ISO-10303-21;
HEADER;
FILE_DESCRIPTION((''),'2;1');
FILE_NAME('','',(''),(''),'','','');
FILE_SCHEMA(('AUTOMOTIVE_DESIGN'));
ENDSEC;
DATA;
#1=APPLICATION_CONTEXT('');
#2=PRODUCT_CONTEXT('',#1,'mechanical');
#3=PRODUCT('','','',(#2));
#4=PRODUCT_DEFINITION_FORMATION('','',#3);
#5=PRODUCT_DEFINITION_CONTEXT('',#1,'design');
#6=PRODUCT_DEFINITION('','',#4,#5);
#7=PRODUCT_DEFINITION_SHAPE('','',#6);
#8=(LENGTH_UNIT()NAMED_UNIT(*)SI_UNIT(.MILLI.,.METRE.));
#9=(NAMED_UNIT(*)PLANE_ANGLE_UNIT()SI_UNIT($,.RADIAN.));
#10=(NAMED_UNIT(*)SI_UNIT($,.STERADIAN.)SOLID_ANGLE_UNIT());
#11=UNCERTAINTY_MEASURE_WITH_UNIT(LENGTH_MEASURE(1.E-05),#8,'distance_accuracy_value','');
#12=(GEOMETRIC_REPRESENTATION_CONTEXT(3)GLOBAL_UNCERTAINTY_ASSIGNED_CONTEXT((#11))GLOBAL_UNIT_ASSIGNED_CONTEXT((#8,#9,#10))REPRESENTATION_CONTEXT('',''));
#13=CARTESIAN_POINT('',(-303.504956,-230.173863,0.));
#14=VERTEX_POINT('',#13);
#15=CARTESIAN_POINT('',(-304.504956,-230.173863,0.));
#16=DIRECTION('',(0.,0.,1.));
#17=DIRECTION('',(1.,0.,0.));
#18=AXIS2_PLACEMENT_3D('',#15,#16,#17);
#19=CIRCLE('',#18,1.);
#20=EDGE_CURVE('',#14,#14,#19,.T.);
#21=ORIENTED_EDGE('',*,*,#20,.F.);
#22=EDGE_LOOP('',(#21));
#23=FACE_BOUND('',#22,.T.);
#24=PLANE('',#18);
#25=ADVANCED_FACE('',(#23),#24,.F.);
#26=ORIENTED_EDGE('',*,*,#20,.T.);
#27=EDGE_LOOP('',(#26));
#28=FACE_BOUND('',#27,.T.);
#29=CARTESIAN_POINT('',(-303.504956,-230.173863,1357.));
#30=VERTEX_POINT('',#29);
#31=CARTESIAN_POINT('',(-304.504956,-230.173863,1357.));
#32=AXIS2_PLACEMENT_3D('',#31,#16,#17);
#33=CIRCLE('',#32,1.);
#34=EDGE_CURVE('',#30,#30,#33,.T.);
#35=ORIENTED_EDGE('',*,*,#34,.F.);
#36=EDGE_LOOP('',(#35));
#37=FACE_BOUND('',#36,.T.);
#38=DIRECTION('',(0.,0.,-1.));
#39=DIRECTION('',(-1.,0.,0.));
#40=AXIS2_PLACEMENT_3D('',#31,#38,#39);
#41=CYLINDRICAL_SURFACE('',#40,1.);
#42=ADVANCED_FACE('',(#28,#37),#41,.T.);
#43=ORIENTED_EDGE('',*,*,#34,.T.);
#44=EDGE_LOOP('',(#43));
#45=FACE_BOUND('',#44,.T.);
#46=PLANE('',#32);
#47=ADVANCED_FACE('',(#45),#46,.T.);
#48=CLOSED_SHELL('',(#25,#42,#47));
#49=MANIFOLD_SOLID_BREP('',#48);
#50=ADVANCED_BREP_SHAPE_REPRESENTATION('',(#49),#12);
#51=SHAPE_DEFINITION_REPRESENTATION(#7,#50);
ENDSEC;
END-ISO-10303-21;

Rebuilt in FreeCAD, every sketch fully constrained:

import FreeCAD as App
import Part
import Sketcher
Q = App.Units.Quantity

doc = App.newDocument("Part")
body = doc.addObject("PartDesign::Body", "Body")

# Sketch on XY plane
sketch1 = doc.addObject("Sketcher::SketchObject", "Sketch")
body.addObject(sketch1)
sketch1.AttachmentSupport = (doc.XY_Plane, [""])
sketch1.MapMode = "FlatFace"
sketch1.addGeometry(Part.Circle(App.Vector(-304.5, -230.2, 0), App.Vector(0, 0, 1), 1), False)
sketch1.addConstraint([
    Sketcher.Constraint("Diameter", 0, Q("2 mm")),
    Sketcher.Constraint("DistanceX", 0, 3, -1, 1, Q("304.504956 mm")),
    Sketcher.Constraint("DistanceY", 0, 3, -1, 1, Q("230.173863 mm")),
])
pad1 = doc.addObject("PartDesign::Pad", "Pad")
body.addObject(pad1)
pad1.Profile = sketch1
pad1.Length = 1357

doc.recompute()
